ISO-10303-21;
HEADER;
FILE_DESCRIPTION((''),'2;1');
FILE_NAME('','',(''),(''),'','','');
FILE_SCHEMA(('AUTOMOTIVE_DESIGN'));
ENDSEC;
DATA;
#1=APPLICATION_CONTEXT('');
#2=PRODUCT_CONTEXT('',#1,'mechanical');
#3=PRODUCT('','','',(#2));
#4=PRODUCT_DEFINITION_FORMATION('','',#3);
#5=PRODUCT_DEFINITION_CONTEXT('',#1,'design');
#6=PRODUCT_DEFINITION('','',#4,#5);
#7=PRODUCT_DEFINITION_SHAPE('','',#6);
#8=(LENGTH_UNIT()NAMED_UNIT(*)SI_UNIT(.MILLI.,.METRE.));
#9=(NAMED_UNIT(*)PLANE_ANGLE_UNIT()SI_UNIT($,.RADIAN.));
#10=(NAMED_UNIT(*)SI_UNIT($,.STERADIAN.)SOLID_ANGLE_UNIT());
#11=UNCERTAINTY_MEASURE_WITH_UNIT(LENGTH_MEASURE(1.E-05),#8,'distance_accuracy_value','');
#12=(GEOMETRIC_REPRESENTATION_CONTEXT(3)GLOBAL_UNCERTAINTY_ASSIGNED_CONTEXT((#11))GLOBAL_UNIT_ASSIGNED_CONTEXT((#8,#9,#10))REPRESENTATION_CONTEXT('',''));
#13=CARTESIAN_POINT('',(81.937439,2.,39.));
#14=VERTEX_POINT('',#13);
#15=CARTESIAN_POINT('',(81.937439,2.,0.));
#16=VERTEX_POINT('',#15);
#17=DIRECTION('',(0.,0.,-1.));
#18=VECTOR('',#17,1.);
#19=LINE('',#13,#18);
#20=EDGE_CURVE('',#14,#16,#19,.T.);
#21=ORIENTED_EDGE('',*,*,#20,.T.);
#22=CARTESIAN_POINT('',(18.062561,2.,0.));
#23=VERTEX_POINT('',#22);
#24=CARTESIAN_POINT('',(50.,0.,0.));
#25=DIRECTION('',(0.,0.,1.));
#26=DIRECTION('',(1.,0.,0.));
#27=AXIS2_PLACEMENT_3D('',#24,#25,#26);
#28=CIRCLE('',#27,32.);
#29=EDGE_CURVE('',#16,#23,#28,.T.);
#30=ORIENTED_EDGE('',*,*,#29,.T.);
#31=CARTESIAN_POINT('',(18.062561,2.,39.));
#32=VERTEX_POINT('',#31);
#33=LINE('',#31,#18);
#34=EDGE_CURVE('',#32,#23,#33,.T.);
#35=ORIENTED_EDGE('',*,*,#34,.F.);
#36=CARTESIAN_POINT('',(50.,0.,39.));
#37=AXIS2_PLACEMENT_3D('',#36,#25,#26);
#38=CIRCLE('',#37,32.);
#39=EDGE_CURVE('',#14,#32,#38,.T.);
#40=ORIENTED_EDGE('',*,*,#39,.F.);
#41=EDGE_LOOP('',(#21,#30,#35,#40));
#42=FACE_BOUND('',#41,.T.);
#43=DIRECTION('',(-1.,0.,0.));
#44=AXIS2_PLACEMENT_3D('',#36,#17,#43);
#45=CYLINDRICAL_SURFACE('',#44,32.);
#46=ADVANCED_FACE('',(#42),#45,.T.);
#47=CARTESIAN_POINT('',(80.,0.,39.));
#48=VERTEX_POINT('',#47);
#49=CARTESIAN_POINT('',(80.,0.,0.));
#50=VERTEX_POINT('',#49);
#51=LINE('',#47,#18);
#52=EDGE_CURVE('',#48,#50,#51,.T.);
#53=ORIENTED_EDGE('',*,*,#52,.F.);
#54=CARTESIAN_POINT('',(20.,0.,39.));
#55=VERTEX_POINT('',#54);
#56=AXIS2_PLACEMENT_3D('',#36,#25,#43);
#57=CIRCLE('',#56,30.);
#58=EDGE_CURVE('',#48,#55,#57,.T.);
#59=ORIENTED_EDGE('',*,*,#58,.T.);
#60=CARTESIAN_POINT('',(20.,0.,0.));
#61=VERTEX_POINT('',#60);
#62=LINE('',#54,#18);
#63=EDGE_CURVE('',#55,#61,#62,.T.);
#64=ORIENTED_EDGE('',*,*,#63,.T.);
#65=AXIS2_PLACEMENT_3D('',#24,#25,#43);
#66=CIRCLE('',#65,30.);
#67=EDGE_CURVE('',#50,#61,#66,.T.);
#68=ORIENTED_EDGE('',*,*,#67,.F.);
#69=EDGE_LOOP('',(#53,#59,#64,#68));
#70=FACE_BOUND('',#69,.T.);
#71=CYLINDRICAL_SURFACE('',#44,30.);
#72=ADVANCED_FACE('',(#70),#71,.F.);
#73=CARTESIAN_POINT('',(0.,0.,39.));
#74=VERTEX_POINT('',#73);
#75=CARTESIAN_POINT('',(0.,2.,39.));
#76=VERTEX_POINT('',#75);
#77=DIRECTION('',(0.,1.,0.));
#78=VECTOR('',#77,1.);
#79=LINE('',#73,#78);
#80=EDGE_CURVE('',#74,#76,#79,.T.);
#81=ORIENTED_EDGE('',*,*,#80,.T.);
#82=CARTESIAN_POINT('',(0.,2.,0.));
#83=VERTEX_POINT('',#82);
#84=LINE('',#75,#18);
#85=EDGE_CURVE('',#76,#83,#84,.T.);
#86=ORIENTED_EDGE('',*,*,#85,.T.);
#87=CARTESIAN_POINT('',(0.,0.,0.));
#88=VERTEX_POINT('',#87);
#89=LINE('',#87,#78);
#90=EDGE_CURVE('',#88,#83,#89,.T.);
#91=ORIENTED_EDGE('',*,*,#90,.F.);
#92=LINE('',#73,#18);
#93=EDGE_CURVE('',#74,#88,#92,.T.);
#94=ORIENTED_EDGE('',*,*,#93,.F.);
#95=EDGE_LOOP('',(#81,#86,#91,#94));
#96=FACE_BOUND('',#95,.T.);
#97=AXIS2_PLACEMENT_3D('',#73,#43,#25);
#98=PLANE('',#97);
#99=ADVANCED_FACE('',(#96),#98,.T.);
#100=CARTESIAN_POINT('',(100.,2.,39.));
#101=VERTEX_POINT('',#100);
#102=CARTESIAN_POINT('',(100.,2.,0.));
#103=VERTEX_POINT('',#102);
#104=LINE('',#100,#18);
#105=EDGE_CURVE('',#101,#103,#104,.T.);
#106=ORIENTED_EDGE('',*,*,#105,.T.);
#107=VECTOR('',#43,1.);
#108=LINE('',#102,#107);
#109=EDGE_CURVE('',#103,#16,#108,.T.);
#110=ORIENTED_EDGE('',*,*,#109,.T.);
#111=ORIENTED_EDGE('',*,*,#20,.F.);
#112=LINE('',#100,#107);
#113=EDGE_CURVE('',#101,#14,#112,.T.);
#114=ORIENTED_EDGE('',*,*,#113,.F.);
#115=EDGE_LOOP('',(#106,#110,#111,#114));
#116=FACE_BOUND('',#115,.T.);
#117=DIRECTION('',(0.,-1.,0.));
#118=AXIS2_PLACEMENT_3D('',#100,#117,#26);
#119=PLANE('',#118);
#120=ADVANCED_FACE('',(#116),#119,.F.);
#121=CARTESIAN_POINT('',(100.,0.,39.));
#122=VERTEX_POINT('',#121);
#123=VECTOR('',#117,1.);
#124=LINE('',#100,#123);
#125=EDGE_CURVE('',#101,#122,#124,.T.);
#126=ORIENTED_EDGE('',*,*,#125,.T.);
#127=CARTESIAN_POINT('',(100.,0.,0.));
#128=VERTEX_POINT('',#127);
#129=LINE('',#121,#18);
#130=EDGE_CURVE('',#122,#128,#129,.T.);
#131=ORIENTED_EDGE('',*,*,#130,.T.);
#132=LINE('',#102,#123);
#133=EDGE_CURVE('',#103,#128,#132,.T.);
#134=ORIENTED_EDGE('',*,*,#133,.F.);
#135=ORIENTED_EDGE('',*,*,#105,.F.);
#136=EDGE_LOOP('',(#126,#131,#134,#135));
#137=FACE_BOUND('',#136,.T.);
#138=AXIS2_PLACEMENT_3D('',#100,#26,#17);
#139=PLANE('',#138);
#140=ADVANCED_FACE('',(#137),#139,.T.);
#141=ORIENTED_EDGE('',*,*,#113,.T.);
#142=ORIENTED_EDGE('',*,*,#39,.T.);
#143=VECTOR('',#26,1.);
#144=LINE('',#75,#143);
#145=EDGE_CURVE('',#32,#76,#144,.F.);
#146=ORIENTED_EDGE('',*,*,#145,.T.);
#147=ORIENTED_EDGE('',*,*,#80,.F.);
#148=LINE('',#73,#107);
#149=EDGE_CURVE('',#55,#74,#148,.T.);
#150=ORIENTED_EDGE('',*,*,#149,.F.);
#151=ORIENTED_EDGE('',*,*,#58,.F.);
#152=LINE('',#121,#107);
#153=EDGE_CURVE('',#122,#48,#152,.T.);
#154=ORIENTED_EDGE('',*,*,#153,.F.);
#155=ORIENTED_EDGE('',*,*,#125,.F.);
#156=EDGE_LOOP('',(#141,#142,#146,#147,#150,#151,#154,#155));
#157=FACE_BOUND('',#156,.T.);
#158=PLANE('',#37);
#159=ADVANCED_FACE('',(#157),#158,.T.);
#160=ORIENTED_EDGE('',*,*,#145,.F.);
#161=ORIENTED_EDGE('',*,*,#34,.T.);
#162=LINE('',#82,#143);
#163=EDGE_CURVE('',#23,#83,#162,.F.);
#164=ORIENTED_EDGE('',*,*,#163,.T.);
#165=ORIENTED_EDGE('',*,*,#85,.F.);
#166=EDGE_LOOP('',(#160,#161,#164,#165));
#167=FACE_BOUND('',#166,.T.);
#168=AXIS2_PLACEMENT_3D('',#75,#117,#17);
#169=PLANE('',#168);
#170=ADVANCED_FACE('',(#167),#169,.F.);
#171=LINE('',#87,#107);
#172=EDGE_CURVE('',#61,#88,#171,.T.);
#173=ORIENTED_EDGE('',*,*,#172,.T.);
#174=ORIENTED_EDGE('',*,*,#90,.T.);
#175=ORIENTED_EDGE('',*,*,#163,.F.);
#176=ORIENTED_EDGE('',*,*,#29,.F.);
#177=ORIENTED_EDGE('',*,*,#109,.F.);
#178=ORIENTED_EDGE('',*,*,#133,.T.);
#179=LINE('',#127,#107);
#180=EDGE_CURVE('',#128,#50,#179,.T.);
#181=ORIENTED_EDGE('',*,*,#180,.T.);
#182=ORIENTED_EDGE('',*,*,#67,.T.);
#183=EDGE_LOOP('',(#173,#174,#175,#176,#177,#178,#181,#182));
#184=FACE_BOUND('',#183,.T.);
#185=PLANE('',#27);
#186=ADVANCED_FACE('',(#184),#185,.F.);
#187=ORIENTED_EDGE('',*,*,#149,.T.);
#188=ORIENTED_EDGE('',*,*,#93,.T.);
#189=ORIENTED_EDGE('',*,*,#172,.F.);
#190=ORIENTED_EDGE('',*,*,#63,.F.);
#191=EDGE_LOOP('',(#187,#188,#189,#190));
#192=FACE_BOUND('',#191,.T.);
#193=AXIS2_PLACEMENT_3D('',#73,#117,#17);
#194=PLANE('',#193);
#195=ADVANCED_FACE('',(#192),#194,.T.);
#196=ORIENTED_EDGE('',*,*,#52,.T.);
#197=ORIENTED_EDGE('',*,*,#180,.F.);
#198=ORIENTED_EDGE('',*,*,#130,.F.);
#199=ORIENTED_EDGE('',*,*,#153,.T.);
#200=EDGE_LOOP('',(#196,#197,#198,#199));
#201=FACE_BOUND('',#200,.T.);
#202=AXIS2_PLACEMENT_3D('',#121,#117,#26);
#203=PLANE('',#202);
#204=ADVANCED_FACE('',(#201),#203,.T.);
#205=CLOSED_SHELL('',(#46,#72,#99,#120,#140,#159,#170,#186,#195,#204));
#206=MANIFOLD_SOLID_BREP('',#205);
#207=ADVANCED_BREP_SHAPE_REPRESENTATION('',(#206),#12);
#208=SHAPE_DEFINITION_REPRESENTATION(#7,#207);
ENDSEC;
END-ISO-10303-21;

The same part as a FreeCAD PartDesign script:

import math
import FreeCAD as App
import Part
import Sketcher

doc = App.newDocument("Part")
params = doc.addObject("Spreadsheet::Sheet", "Params")
for row, (alias, value) in enumerate([
    ("sketch1_radius", "30 mm"),
    ("sketch1_radius2", "32 mm"),
    ("sketch1_width", "20 mm"),
    ("sketch1_height", "2 mm"),
    ("pad1_length", "39 mm"),
], start=1):
    params.set(f"A{row}", alias)
    params.set(f"B{row}", "=" + value)
    params.setAlias(f"B{row}", alias)

body = doc.addObject("PartDesign::Body", "Body")

sketch1 = body.newObject("Sketcher::SketchObject", "Sketch")
sketch1.AttachmentSupport = (doc.getObject("XY_Plane"), [""])
sketch1.MapMode = "FlatFace"
sketch1.addGeometry(Part.LineSegment(App.Vector(0, 0, 0), App.Vector(20, 0, 0)), False)
sketch1.addGeometry(Part.ArcOfCircle(Part.Circle(App.Vector(50, 0, 0), App.Vector(0, 0, 1), 30), math.radians(0), math.radians(180)), False)
sketch1.addGeometry(Part.LineSegment(App.Vector(80, 0, 0), App.Vector(100, 0, 0)), False)
sketch1.addGeometry(Part.LineSegment(App.Vector(100, 0, 0), App.Vector(100, 2, 0)), False)
sketch1.addGeometry(Part.LineSegment(App.Vector(100, 2, 0), App.Vector(81.9, 2, 0)), False)
sketch1.addGeometry(Part.ArcOfCircle(Part.Circle(App.Vector(50, 0, 0), App.Vector(0, 0, 1), 32), math.radians(4), math.radians(176)), False)
sketch1.addGeometry(Part.LineSegment(App.Vector(18.1, 2, 0), App.Vector(0, 2, 0)), False)
sketch1.addGeometry(Part.LineSegment(App.Vector(0, 2, 0), App.Vector(0, 0, 0)), False)
sketch1.addConstraint(Sketcher.Constraint("Coincident", 0, 2, 1, 2))
sketch1.addConstraint(Sketcher.Constraint("Coincident", 1, 1, 2, 1))
sketch1.addConstraint(Sketcher.Constraint("Coincident", 2, 2, 3, 1))
sketch1.addConstraint(Sketcher.Constraint("Coincident", 3, 2, 4, 1))
sketch1.addConstraint(Sketcher.Constraint("Coincident", 4, 2, 5, 1))
sketch1.addConstraint(Sketcher.Constraint("Coincident", 5, 2, 6, 1))
sketch1.addConstraint(Sketcher.Constraint("Coincident", 6, 2, 7, 1))
sketch1.addConstraint(Sketcher.Constraint("Coincident", 7, 2, 0, 1))
sketch1.addConstraint(Sketcher.Constraint("Horizontal", 0))
sketch1.addConstraint(Sketcher.Constraint("Horizontal", 2))
sketch1.addConstraint(Sketcher.Constraint("Vertical", 3))
sketch1.addConstraint(Sketcher.Constraint("Horizontal", 4))
sketch1.addConstraint(Sketcher.Constraint("Horizontal", 6))
sketch1.addConstraint(Sketcher.Constraint("Vertical", 7))
sketch1.addConstraint(Sketcher.Constraint("Coincident", 7, 2, -1, 1))
sketch1.addConstraint(Sketcher.Constraint("Coincident", 5, 3, 1, 3))
sketch1.addConstraint(Sketcher.Constraint("PointOnObject", 1, 3, -1))
sketch1.addConstraint(Sketcher.Constraint("PointOnObject", 1, 1, -1))
sketch1.addConstraint(Sketcher.Constraint("Horizontal", 4, 2, 5, 2))
sketch1.addConstraint(Sketcher.Constraint("Equal", 0, 2))
sketch1.addConstraint(Sketcher.Constraint("Radius", 1, 30.0))
sketch1.addConstraint(Sketcher.Constraint("Radius", 5, 32.0))
sketch1.addConstraint(Sketcher.Constraint("DistanceX", 0, 1, 0, 2, 20.0))
sketch1.addConstraint(Sketcher.Constraint("DistanceY", 3, 1, 3, 2, 2.0))
sketch1.setExpression("Constraints[20]", "Params.sketch1_radius")
sketch1.setExpression("Constraints[21]", "Params.sketch1_radius2")
sketch1.setExpression("Constraints[22]", "Params.sketch1_width")
sketch1.setExpression("Constraints[23]", "Params.sketch1_height")
pad1 = body.newObject("PartDesign::Pad", "Pad")
pad1.Profile = sketch1
pad1.setExpression("Length", "Params.pad1_length")

doc.recompute()
